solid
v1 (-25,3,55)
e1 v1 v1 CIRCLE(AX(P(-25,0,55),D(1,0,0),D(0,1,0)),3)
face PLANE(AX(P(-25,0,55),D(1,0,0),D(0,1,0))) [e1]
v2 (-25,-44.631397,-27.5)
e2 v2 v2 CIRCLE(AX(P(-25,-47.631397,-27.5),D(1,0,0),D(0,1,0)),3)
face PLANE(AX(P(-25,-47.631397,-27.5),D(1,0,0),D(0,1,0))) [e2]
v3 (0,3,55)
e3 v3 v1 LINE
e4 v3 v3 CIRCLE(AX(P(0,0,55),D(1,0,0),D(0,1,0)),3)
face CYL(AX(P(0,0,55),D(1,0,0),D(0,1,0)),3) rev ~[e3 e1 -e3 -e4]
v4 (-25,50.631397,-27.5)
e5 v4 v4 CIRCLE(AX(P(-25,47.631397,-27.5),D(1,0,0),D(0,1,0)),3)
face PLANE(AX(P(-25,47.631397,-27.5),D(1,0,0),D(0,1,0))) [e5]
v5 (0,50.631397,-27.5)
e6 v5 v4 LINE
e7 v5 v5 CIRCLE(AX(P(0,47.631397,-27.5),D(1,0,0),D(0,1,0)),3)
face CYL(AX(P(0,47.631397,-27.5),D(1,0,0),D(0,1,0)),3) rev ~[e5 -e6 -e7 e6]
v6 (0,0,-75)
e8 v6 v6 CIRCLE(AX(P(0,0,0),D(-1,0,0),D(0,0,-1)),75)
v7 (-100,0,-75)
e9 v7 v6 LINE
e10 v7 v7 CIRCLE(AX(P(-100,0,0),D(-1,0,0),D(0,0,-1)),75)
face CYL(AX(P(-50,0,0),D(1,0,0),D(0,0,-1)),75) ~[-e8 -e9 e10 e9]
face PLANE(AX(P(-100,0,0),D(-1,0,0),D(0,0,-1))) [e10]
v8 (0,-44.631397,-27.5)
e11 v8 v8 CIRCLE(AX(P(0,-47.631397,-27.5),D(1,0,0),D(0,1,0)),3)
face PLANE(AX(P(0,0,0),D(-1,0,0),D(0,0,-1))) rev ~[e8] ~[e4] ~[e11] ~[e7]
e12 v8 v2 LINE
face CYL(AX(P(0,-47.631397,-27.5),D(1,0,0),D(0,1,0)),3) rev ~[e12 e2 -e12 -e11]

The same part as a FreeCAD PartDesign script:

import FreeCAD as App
import Part
import Sketcher
from FreeCAD import Vector

doc = App.newDocument("Part")
body = doc.addObject("PartDesign::Body", "Body")

# Sketch on XZ plane
sketch1 = body.newObject("Sketcher::SketchObject", "Sketch")
sketch1.AttachmentSupport = (doc.getObject("XZ_Plane"), [""])
sketch1.MapMode = "FlatFace"
sketch1.addGeometry(Part.LineSegment(Vector(-100, 0, 0), Vector(-100, -75, 0)), False)
sketch1.addGeometry(Part.LineSegment(Vector(-100, -75, 0), Vector(0, -75, 0)), False)
sketch1.addGeometry(Part.LineSegment(Vector(0, -75, 0), Vector(0, 0, 0)), False)
sketch1.addGeometry(Part.LineSegment(Vector(0, 0, 0), Vector(-100, 0, 0)), False)
sketch1.addConstraint(Sketcher.Constraint("Coincident", 0, 2, 1, 1))
sketch1.addConstraint(Sketcher.Constraint("Coincident", 1, 2, 2, 1))
sketch1.addConstraint(Sketcher.Constraint("Coincident", 2, 2, 3, 1))
sketch1.addConstraint(Sketcher.Constraint("Coincident", 3, 2, 0, 1))
sketch1.addConstraint(Sketcher.Constraint("Vertical", 0))
sketch1.addConstraint(Sketcher.Constraint("Horizontal", 1))
sketch1.addConstraint(Sketcher.Constraint("Vertical", 2))
sketch1.addConstraint(Sketcher.Constraint("Horizontal", 3))
sketch1.addConstraint(Sketcher.Constraint("Coincident", 2, 2, -1, 1))
sketch1.addConstraint(Sketcher.Constraint("DistanceX", 1, 1, 1, 2, 100.0))
sketch1.addConstraint(Sketcher.Constraint("DistanceY", 0, 2, 0, 1, 75.0))
revolution = body.newObject("PartDesign::Revolution", "Revolution")
revolution.Profile = sketch1
revolution.ReferenceAxis = (sketch1, ["H_Axis"])
revolution.Angle = 360

# Sketch on YZ plane
sketch2 = body.newObject("Sketcher::SketchObject", "Sketch001")
sketch2.AttachmentSupport = (doc.getObject("YZ_Plane"), [""])
sketch2.MapMode = "FlatFace"
sketch2.addGeometry(Part.Circle(Vector(0, 55, 0), Vector(0, 0, 1), 3), False)
sketch2.addGeometry(Part.Circle(Vector(-47.6, -27.5, 0), Vector(0, 0, 1), 3), False)
sketch2.addGeometry(Part.Circle(Vector(47.6, -27.5, 0), Vector(0, 0, 1), 3), False)
sketch2.addConstraint(Sketcher.Constraint("Equal", 0, 1))
sketch2.addConstraint(Sketcher.Constraint("Equal", 1, 2))
sketch2.addConstraint(Sketcher.Constraint("Symmetric", 1, 3, 2, 3, -2))
sketch2.addConstraint(Sketcher.Constraint("PointOnObject", 0, 3, -2))
sketch2.addConstraint(Sketcher.Constraint("Diameter", 0, 6.0))
sketch2.addConstraint(Sketcher.Constraint("DistanceY", -1, 1, 0, 3, 55.0))
sketch2.addConstraint(Sketcher.Constraint("DistanceY", 1, 3, -1, 1, 27.5))
sketch2.addConstraint(Sketcher.Constraint("DistanceX", 1, 3, -1, 1, 47.631397))
pocket1 = body.newObject("PartDesign::Pocket", "Pocket")
pocket1.Profile = sketch2
pocket1.Length = 25

doc.recompute()
